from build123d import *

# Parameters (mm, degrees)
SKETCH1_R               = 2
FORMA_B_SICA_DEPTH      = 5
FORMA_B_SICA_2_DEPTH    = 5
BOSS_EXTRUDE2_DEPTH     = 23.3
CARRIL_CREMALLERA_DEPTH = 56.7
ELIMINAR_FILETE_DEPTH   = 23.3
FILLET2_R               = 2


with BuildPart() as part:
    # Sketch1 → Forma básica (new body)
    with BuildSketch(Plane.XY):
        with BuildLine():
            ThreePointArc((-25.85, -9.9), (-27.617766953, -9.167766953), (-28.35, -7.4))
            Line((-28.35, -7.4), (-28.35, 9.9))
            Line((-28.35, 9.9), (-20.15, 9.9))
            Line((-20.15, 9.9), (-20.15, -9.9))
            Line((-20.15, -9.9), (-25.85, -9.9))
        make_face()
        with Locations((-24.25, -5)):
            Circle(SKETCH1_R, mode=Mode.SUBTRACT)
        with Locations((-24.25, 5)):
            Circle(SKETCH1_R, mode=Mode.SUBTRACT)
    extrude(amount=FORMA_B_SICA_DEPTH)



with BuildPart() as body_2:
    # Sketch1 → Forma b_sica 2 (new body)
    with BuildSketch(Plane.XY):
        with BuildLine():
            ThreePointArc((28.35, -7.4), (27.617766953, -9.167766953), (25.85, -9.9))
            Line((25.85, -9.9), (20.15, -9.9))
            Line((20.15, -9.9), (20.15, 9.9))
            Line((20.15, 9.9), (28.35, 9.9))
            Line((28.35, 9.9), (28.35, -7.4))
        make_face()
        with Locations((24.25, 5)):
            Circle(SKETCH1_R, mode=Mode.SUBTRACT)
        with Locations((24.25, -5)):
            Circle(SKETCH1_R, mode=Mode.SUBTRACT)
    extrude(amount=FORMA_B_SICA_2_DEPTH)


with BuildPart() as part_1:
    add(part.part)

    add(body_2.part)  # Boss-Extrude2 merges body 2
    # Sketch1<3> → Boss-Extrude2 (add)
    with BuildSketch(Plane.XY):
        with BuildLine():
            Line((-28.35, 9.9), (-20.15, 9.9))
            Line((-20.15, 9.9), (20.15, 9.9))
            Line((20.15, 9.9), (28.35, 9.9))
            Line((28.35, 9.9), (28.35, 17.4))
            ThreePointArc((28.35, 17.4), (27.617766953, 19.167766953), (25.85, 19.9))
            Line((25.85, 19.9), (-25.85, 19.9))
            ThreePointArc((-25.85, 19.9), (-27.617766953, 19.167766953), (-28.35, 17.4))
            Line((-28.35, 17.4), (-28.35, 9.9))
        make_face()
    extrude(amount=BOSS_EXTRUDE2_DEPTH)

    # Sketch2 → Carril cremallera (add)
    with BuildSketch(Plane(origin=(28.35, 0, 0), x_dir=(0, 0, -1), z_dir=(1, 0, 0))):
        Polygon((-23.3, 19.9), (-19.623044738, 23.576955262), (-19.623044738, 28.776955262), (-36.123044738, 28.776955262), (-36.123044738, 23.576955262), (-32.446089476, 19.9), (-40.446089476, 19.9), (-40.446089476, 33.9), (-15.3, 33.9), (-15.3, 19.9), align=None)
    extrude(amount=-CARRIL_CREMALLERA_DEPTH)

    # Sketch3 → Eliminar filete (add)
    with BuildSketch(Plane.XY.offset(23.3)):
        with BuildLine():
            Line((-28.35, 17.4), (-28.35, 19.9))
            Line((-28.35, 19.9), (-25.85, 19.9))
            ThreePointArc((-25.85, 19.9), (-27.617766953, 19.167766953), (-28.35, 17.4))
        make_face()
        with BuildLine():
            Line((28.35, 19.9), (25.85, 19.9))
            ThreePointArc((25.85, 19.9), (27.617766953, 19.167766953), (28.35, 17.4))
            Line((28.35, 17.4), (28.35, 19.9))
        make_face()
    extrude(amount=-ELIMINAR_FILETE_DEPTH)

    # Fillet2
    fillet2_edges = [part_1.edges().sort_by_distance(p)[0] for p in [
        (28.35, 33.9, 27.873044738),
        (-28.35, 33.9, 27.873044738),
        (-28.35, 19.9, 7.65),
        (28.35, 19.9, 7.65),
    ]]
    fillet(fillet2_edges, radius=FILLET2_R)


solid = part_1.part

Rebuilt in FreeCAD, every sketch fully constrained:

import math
import FreeCAD as App
import Part
import Sketcher
from FreeCAD import Vector
Q = App.Units.Quantity


def edges_at(feature, points):
    """Names of the edges that pass closest to the given points."""
    edges = feature.Shape.Edges
    near = lambda p: min(range(len(edges)), key=lambda i: edges[i].distToShape(Part.Vertex(*p))[0])
    return sorted({f"Edge{near(p) + 1}" for p in points})


def add_polygon(sketch, points):
    """Adds a closed chain of lines whose ends are joined by coincident constraints."""
    first, n = sketch.GeometryCount, len(points)
    for a, b in zip(points, points[1:] + points[:1]):
        sketch.addGeometry(Part.LineSegment(App.Vector(*a, 0), App.Vector(*b, 0)), False)
    for i in range(n):
        sketch.addConstraint(Sketcher.Constraint("Coincident", first + i, 2, first + (i + 1) % n, 1))

doc = App.newDocument("Part")
body = doc.addObject("PartDesign::Body", "Body")

# Sketch on XY plane
sketch1 = body.newObject("Sketcher::SketchObject", "Sketch")
sketch1.AttachmentSupport = (doc.getObject("XY_Plane"), [""])
sketch1.MapMode = "FlatFace"
sketch1.addGeometry(Part.ArcOfCircle(Part.Circle(Vector(-25.9, -7.4, 0), Vector(0, 0, 1), 2.5), math.radians(180), math.radians(270)), False)
sketch1.addGeometry(Part.LineSegment(Vector(-25.9, -9.9, 0), Vector(-20.1, -9.9, 0)), False)
sketch1.addGeometry(Part.LineSegment(Vector(-20.1, -9.9, 0), Vector(-20.1, 9.9, 0)), False)
sketch1.addGeometry(Part.LineSegment(Vector(-20.1, 9.9, 0), Vector(-28.4, 9.9, 0)), False)
sketch1.addGeometry(Part.LineSegment(Vector(-28.4, 9.9, 0), Vector(-28.4, -7.4, 0)), False)
sketch1.addGeometry(Part.Circle(Vector(-24.2, -5, 0), Vector(0, 0, 1), 2), False)
sketch1.addGeometry(Part.Circle(Vector(-24.2, 5, 0), Vector(0, 0, 1), 2), False)
sketch1.addConstraint(Sketcher.Constraint("Tangent", 0, 2, 1, 1))
sketch1.addConstraint(Sketcher.Constraint("Coincident", 1, 2, 2, 1))
sketch1.addConstraint(Sketcher.Constraint("Coincident", 2, 2, 3, 1))
sketch1.addConstraint(Sketcher.Constraint("Coincident", 3, 2, 4, 1))
sketch1.addConstraint(Sketcher.Constraint("Tangent", 4, 2, 0, 1))
sketch1.addConstraint(Sketcher.Constraint("Horizontal", 1))
sketch1.addConstraint(Sketcher.Constraint("Vertical", 2))
sketch1.addConstraint(Sketcher.Constraint("Horizontal", 3))
sketch1.addConstraint(Sketcher.Constraint("Vertical", 4))
sketch1.addConstraint(Sketcher.Constraint("Equal", 5, 6))
sketch1.addConstraint(Sketcher.Constraint("Symmetric", 5, 3, 6, 3, -1))
sketch1.addConstraint(Sketcher.Constraint("Diameter", 5, Q("4 mm")))
sketch1.addConstraint(Sketcher.Constraint("Radius", 0, Q("2.5 mm")))
sketch1.addConstraint(Sketcher.Constraint("DistanceX", 1, 1, 1, 2, Q("5.7 mm")))
sketch1.addConstraint(Sketcher.Constraint("DistanceY", 2, 1, 2, 2, Q("19.8 mm")))
sketch1.addConstraint(Sketcher.Constraint("DistanceY", 5, 3, -1, 1, Q("5 mm")))
sketch1.addConstraint(Sketcher.Constraint("DistanceY", 0, 3, -1, 1, Q("7.4 mm")))
sketch1.addConstraint(Sketcher.Constraint("DistanceX", 0, 3, 5, 3, Q("1.6 mm")))
sketch1.addConstraint(Sketcher.Constraint("DistanceX", 0, 3, -1, 1, Q("25.85 mm")))
pad1 = body.newObject("PartDesign::Pad", "Pad")
pad1.Profile = sketch1
pad1.Length = 5
body2 = doc.addObject("PartDesign::Body", "Body001")

# Sketch on XY plane
sketch2 = body2.newObject("Sketcher::SketchObject", "Sketch001")
sketch2.AttachmentSupport = (doc.getObject("XY_Plane001"), [""])
sketch2.MapMode = "FlatFace"
sketch2.addGeometry(Part.ArcOfCircle(Part.Circle(Vector(25.9, -7.4, 0), Vector(0, 0, 1), 2.5), math.radians(-90), math.radians(0)), False)
sketch2.addGeometry(Part.LineSegment(Vector(28.4, -7.4, 0), Vector(28.4, 9.9, 0)), False)
sketch2.addGeometry(Part.LineSegment(Vector(28.4, 9.9, 0), Vector(20.1, 9.9, 0)), False)
sketch2.addGeometry(Part.LineSegment(Vector(20.1, 9.9, 0), Vector(20.1, -9.9, 0)), False)
sketch2.addGeometry(Part.LineSegment(Vector(20.1, -9.9, 0), Vector(25.9, -9.9, 0)), False)
sketch2.addGeometry(Part.Circle(Vector(24.2, -5, 0), Vector(0, 0, 1), 2), False)
sketch2.addGeometry(Part.Circle(Vector(24.2, 5, 0), Vector(0, 0, 1), 2), False)
sketch2.addConstraint(Sketcher.Constraint("Tangent", 0, 2, 1, 1))
sketch2.addConstraint(Sketcher.Constraint("Coincident", 1, 2, 2, 1))
sketch2.addConstraint(Sketcher.Constraint("Coincident", 2, 2, 3, 1))
sketch2.addConstraint(Sketcher.Constraint("Coincident", 3, 2, 4, 1))
sketch2.addConstraint(Sketcher.Constraint("Tangent", 4, 2, 0, 1))
sketch2.addConstraint(Sketcher.Constraint("Vertical", 1))
sketch2.addConstraint(Sketcher.Constraint("Horizontal", 2))
sketch2.addConstraint(Sketcher.Constraint("Vertical", 3))
sketch2.addConstraint(Sketcher.Constraint("Horizontal", 4))
sketch2.addConstraint(Sketcher.Constraint("Equal", 5, 6))
sketch2.addConstraint(Sketcher.Constraint("Symmetric", 5, 3, 6, 3, -1))
sketch2.addConstraint(Sketcher.Constraint("Diameter", 5, Q("4 mm")))
sketch2.addConstraint(Sketcher.Constraint("Radius", 0, Q("2.5 mm")))
sketch2.addConstraint(Sketcher.Constraint("DistanceX", 2, 2, 2, 1, Q("8.2 mm")))
sketch2.addConstraint(Sketcher.Constraint("DistanceY", 1, 1, 1, 2, Q("17.3 mm")))
sketch2.addConstraint(Sketcher.Constraint("DistanceY", 5, 3, -1, 1, Q("5 mm")))
sketch2.addConstraint(Sketcher.Constraint("DistanceY", 0, 3, -1, 1, Q("7.4 mm")))
sketch2.addConstraint(Sketcher.Constraint("DistanceX", 5, 3, 0, 3, Q("1.6 mm")))
sketch2.addConstraint(Sketcher.Constraint("DistanceX", -1, 1, 0, 3, Q("25.85 mm")))
pad2 = body2.newObject("PartDesign::Pad", "Pad001")
pad2.Profile = sketch2
pad2.Length = 5
body.AllowCompound = True
doc.recompute()

boolean = body.newObject("PartDesign::Boolean", "Boolean")
boolean.Type = "Fuse"
boolean.addObjects([body2])

# Sketch on XY plane
sketch3 = body.newObject("Sketcher::SketchObject", "Sketch002")
sketch3.AttachmentSupport = (doc.getObject("XY_Plane"), [""])
sketch3.MapMode = "FlatFace"
sketch3.addGeometry(Part.LineSegment(Vector(-28.4, 9.9, 0), Vector(28.4, 9.9, 0)), False)
sketch3.addGeometry(Part.LineSegment(Vector(28.4, 9.9, 0), Vector(28.4, 17.4, 0)), False)
sketch3.addGeometry(Part.ArcOfCircle(Part.Circle(Vector(25.9, 17.4, 0), Vector(0, 0, 1), 2.5), math.radians(0), math.radians(90)), False)
sketch3.addGeometry(Part.LineSegment(Vector(25.9, 19.9, 0), Vector(-25.9, 19.9, 0)), False)
sketch3.addGeometry(Part.ArcOfCircle(Part.Circle(Vector(-25.9, 17.4, 0), Vector(0, 0, 1), 2.5), math.radians(90), math.radians(180)), False)
sketch3.addGeometry(Part.LineSegment(Vector(-28.4, 17.4, 0), Vector(-28.4, 9.9, 0)), False)
sketch3.addConstraint(Sketcher.Constraint("Coincident", 0, 2, 1, 1))
sketch3.addConstraint(Sketcher.Constraint("Tangent", 1, 2, 2, 1))
sketch3.addConstraint(Sketcher.Constraint("Tangent", 2, 2, 3, 1))
sketch3.addConstraint(Sketcher.Constraint("Tangent", 3, 2, 4, 1))
sketch3.addConstraint(Sketcher.Constraint("Tangent", 4, 2, 5, 1))
sketch3.addConstraint(Sketcher.Constraint("Coincident", 5, 2, 0, 1))
sketch3.addConstraint(Sketcher.Constraint("Horizontal", 0))
sketch3.addConstraint(Sketcher.Constraint("Vertical", 1))
sketch3.addConstraint(Sketcher.Constraint("Horizontal", 3))
sketch3.addConstraint(Sketcher.Constraint("Vertical", 5))
sketch3.addConstraint(Sketcher.Constraint("Equal", 2, 4))
sketch3.addConstraint(Sketcher.Constraint("Radius", 2, Q("2.5 mm")))
sketch3.addConstraint(Sketcher.Constraint("DistanceX", 0, 1, 0, 2, Q("56.7 mm")))
sketch3.addConstraint(Sketcher.Constraint("DistanceY", 1, 1, 1, 2, Q("7.5 mm")))
sketch3.addConstraint(Sketcher.Constraint("DistanceY", -1, 1, 2, 3, Q("17.4 mm")))
sketch3.addConstraint(Sketcher.Constraint("DistanceX", -1, 1, 2, 3, Q("25.85 mm")))
pad3 = body.newObject("PartDesign::Pad", "Pad002")
pad3.Profile = sketch3
pad3.Length = 23.3

# Sketch on YZ plane
sketch4 = body.newObject("Sketcher::SketchObject", "Sketch003")
sketch4.AttachmentSupport = (doc.getObject("YZ_Plane"), [""])
sketch4.MapMode = "FlatFace"
sketch4.AttachmentOffset = App.Placement(Vector(0, 0, 28.35), App.Rotation())
add_polygon(sketch4, [(24, 20), (20, 23), (20, 15), (34, 15), (34, 40), (20, 40), (20, 32), (24, 36), (29, 36), (29, 20)])  # lines 0-9
sketch4.addConstraint(Sketcher.Constraint("Vertical", 1))
sketch4.addConstraint(Sketcher.Constraint("Horizontal", 2))
sketch4.addConstraint(Sketcher.Constraint("Vertical", 3))
sketch4.addConstraint(Sketcher.Constraint("Horizontal", 4))
sketch4.addConstraint(Sketcher.Constraint("Vertical", 5))
sketch4.addConstraint(Sketcher.Constraint("Horizontal", 7))
sketch4.addConstraint(Sketcher.Constraint("Vertical", 8))
sketch4.addConstraint(Sketcher.Constraint("Horizontal", 9))
sketch4.addConstraint(Sketcher.Constraint("Perpendicular", 0, 6))
sketch4.addConstraint(Sketcher.Constraint("Vertical", 1, 2, 4, 2))
sketch4.addConstraint(Sketcher.Constraint("Vertical", 6, 2, 9, 2))
sketch4.addConstraint(Sketcher.Constraint("Equal", 1, 5))
sketch4.addConstraint(Sketcher.Constraint("Equal", 0, 6))
sketch4.addConstraint(Sketcher.Constraint("DistanceX", 2, 1, 2, 2, Q("14 mm")))
sketch4.addConstraint(Sketcher.Constraint("DistanceY", 1, 2, 1, 1, Q("8 mm")))
sketch4.addConstraint(Sketcher.Constraint("DistanceX", 7, 1, 7, 2, Q("5.2 mm")))
sketch4.addConstraint(Sketcher.Constraint("DistanceY", 8, 2, 8, 1, Q("16.5 mm")))
sketch4.addConstraint(Sketcher.Constraint("Distance", 0, Q("5.2 mm")))
sketch4.addConstraint(Sketcher.Constraint("DistanceX", -1, 1, 0, 2, Q("19.9 mm")))
sketch4.addConstraint(Sketcher.Constraint("DistanceY", -1, 1, 0, 2, Q("23.3 mm")))
pad4 = body.newObject("PartDesign::Pad", "Pad003")
pad4.Profile = sketch4
pad4.Length = 56.7
pad4.Reversed = True

# Sketch on XY plane
sketch5 = body.newObject("Sketcher::SketchObject", "Sketch004")
sketch5.AttachmentSupport = (doc.getObject("XY_Plane"), [""])
sketch5.MapMode = "FlatFace"
sketch5.AttachmentOffset = App.Placement(Vector(0, 0, 23.3), App.Rotation())
sketch5.addGeometry(Part.LineSegment(Vector(-28.4, 19.9, 0), Vector(-28.4, 17.4, 0)), False)
sketch5.addGeometry(Part.ArcOfCircle(Part.Circle(Vector(-25.9, 17.4, 0), Vector(0, 0, 1), 2.5), math.radians(90), math.radians(180)), False)
sketch5.addGeometry(Part.LineSegment(Vector(-25.9, 19.9, 0), Vector(-28.4, 19.9, 0)), False)
sketch5.addGeometry(Part.LineSegment(Vector(28.4, 19.9, 0), Vector(25.9, 19.9, 0)), False)
sketch5.addGeometry(Part.ArcOfCircle(Part.Circle(Vector(25.9, 17.4, 0), Vector(0, 0, 1), 2.5), math.radians(0), math.radians(90)), False)
sketch5.addGeometry(Part.LineSegment(Vector(28.4, 17.4, 0), Vector(28.4, 19.9, 0)), False)
sketch5.addConstraint(Sketcher.Constraint("Tangent", 0, 2, 1, 2))
sketch5.addConstraint(Sketcher.Constraint("Tangent", 1, 1, 2, 1))
sketch5.addConstraint(Sketcher.Constraint("Coincident", 2, 2, 0, 1))
sketch5.addConstraint(Sketcher.Constraint("Tangent", 3, 2, 4, 2))
sketch5.addConstraint(Sketcher.Constraint("Tangent", 4, 1, 5, 1))
sketch5.addConstraint(Sketcher.Constraint("Coincident", 5, 2, 3, 1))
sketch5.addConstraint(Sketcher.Constraint("Vertical", 0))
sketch5.addConstraint(Sketcher.Constraint("Horizontal", 2))
sketch5.addConstraint(Sketcher.Constraint("Horizontal", 3))
sketch5.addConstraint(Sketcher.Constraint("Vertical", 5))
sketch5.addConstraint(Sketcher.Constraint("Equal", 1, 4))
sketch5.addConstraint(Sketcher.Constraint("Symmetric", 1, 3, 4, 3, -2))
sketch5.addConstraint(Sketcher.Constraint("Radius", 1, Q("2.5 mm")))
sketch5.addConstraint(Sketcher.Constraint("DistanceY", -1, 1, 1, 3, Q("17.4 mm")))
sketch5.addConstraint(Sketcher.Constraint("DistanceX", 1, 3, 4, 3, Q("51.7 mm")))
pad5 = body.newObject("PartDesign::Pad", "Pad004")
pad5.Profile = sketch5
pad5.Length = 23.3
pad5.Reversed = True
doc.recompute()

fillet = body.newObject("PartDesign::Fillet", "Fillet")
fillet.Base = (pad5, edges_at(pad5, [
    (28.35, 33.9, 27.873),
    (-28.35, 33.9, 27.873),
    (-28.35, 19.9, 7.65),
    (28.35, 19.9, 7.65),
]))
fillet.Radius = 2

doc.recompute()
